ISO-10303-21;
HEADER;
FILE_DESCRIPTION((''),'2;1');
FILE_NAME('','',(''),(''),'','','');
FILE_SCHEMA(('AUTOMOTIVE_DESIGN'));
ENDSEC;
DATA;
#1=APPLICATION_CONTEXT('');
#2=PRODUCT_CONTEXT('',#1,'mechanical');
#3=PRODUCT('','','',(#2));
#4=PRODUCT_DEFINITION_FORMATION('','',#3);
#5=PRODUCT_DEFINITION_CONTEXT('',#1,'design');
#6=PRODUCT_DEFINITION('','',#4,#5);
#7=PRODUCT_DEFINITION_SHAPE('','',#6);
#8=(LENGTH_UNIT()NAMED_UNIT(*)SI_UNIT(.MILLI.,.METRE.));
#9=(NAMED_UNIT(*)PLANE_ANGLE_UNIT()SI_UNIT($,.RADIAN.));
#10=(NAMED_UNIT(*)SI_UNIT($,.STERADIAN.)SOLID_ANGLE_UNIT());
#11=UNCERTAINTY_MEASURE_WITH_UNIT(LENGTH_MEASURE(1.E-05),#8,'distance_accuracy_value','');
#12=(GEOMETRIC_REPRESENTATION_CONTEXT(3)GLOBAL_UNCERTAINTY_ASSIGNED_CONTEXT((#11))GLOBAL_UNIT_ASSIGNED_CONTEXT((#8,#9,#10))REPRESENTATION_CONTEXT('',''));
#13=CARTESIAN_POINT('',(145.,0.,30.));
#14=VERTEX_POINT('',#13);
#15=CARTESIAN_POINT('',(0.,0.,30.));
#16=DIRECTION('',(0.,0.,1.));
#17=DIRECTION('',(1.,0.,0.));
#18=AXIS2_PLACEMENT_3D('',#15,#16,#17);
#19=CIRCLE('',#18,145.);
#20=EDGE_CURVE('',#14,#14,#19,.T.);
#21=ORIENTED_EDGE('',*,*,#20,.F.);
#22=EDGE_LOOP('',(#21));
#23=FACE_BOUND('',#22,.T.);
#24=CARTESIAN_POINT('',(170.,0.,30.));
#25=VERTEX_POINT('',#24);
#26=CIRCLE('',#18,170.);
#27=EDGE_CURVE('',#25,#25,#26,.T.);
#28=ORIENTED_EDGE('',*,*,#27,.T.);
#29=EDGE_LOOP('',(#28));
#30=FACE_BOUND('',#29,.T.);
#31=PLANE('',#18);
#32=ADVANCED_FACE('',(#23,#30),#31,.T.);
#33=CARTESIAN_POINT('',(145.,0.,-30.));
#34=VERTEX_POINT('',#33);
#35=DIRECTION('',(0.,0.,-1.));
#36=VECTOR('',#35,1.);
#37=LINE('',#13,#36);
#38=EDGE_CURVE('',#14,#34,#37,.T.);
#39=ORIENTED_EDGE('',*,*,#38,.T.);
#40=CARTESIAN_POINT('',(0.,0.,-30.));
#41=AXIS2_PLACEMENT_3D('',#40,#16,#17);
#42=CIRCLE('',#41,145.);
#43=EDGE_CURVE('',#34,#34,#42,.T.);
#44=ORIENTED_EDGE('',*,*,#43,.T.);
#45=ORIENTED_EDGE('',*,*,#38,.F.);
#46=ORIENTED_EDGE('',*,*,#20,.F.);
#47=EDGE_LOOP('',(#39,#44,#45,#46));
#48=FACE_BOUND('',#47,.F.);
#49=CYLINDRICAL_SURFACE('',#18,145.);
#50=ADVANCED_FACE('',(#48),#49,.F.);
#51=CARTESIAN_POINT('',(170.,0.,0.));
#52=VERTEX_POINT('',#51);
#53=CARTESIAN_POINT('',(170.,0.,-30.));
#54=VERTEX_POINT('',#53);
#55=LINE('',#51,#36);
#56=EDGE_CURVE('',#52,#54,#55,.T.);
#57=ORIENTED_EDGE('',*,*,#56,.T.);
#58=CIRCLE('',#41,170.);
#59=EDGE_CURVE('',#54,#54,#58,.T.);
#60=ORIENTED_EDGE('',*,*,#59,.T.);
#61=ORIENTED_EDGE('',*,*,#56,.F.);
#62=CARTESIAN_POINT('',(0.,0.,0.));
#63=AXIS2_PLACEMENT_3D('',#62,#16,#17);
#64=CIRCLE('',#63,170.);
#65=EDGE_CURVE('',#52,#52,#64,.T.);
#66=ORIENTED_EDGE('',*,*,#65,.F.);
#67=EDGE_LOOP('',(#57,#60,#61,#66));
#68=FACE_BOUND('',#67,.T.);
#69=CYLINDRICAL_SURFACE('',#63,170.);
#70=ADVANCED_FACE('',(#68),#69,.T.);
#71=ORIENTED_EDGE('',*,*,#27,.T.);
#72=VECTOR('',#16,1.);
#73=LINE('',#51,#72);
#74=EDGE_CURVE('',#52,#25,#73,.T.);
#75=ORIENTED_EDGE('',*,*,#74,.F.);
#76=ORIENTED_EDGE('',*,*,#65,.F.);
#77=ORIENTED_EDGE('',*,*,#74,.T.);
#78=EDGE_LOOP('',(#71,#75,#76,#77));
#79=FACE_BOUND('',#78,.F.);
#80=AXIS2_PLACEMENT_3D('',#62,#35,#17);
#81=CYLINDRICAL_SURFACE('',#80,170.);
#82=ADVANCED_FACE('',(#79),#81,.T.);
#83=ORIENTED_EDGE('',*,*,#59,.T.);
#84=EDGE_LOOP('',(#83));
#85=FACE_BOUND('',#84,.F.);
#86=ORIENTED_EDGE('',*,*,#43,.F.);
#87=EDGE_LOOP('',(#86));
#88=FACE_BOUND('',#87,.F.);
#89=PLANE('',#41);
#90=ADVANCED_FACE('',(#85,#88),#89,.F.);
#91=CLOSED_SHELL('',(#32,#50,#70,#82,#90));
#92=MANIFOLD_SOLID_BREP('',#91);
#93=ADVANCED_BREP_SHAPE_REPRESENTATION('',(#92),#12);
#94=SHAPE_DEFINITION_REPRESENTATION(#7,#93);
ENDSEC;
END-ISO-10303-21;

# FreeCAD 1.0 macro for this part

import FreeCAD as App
import Part
import Sketcher

V = App.Vector
Q = App.Units.Quantity

doc = App.newDocument("Part")
body = doc.addObject("PartDesign::Body", "Body")

# Sketch on XY plane
sketch1 = body.newObject("Sketcher::SketchObject", "Sketch")
sketch1.AttachmentSupport = (doc.getObject("XY_Plane"), [""])
sketch1.MapMode = "FlatFace"
sketch1.addGeometry(Part.Circle(V(0, 0, 0), V(0, 0, 1), 170), False)
sketch1.addConstraint([
    Sketcher.Constraint("Coincident", 0, 3, -1, 1),
    Sketcher.Constraint("Diameter", 0, Q("340 mm")),
])
pad1 = body.newObject("PartDesign::Pad", "Pad")
pad1.Profile = sketch1
pad1.Length = 60
pad1.Midplane = True

# Sketch on XY plane
sketch2 = body.newObject("Sketcher::SketchObject", "Sketch001")
sketch2.AttachmentSupport = (doc.getObject("XY_Plane"), [""])
sketch2.MapMode = "FlatFace"
sketch2.AttachmentOffset = App.Placement(V(0, 0, 30), App.Rotation())
sketch2.addGeometry(Part.Circle(V(0, 0, 0), V(0, 0, 1), 145), False)
sketch2.addConstraint([
    Sketcher.Constraint("Coincident", 0, 3, -1, 1),
    Sketcher.Constraint("Diameter", 0, Q("290 mm")),
])
pocket1 = body.newObject("PartDesign::Pocket", "Pocket")
pocket1.Profile = sketch2
pocket1.Type = "ThroughAll"

doc.recompute()
